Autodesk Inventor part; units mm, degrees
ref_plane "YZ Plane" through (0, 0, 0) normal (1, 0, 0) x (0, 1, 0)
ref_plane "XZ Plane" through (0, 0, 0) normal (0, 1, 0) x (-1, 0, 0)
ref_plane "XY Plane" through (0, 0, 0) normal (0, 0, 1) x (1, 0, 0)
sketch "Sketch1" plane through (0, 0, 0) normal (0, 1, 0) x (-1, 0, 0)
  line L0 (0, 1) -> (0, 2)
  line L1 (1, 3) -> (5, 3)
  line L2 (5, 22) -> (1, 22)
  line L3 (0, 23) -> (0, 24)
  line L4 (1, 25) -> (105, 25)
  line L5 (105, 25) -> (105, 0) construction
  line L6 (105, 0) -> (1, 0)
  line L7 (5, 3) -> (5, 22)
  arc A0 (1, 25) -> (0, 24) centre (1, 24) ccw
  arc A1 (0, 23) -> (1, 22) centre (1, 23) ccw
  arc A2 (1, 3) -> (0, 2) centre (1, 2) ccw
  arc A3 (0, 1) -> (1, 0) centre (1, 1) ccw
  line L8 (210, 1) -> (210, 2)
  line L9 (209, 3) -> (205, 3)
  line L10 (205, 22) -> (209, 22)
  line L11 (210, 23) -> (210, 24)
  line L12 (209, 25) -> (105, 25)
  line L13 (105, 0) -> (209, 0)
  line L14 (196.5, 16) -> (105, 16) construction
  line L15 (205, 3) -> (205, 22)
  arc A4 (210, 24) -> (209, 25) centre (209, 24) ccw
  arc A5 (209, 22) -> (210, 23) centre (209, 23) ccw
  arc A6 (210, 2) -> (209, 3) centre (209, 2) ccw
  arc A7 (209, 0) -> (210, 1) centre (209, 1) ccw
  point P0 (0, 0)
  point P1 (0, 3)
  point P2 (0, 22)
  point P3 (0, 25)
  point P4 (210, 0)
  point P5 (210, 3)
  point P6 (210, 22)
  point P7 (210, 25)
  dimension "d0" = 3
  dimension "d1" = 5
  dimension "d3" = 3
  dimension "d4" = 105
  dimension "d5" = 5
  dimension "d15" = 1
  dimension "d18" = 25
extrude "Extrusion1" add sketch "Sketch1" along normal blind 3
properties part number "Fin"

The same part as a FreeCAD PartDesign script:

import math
import FreeCAD as App
import Part
import Sketcher
from FreeCAD import Vector
Q = App.Units.Quantity

doc = App.newDocument("Part")
body = doc.addObject("PartDesign::Body", "Body")

sketch1 = doc.addObject("Sketcher::SketchObject", "Sketch")
body.addObject(sketch1)
sketch1.AttachmentSupport = (doc.XZ_Plane, [""])
sketch1.MapMode = "FlatFace"
sketch1.addGeometry([
    Part.LineSegment(Vector(0, 2, 0), Vector(0, 1, 0)),
    Part.ArcOfCircle(Part.Circle(Vector(-1, 1, 0), Vector(0, 0, 1), 1), math.radians(-90), math.radians(0)),
    Part.LineSegment(Vector(-1, 0, 0), Vector(-209, 0, 0)),
    Part.ArcOfCircle(Part.Circle(Vector(-209, 1, 0), Vector(0, 0, 1), 1), math.radians(180), math.radians(270)),
    Part.LineSegment(Vector(-210, 1, 0), Vector(-210, 2, 0)),
    Part.ArcOfCircle(Part.Circle(Vector(-209, 2, 0), Vector(0, 0, 1), 1), math.radians(90), math.radians(180)),
    Part.LineSegment(Vector(-209, 3, 0), Vector(-205, 3, 0)),
    Part.LineSegment(Vector(-205, 3, 0), Vector(-205, 22, 0)),
    Part.LineSegment(Vector(-205, 22, 0), Vector(-209, 22, 0)),
    Part.ArcOfCircle(Part.Circle(Vector(-209, 23, 0), Vector(0, 0, 1), 1), math.radians(180), math.radians(270)),
    Part.LineSegment(Vector(-210, 23, 0), Vector(-210, 24, 0)),
    Part.ArcOfCircle(Part.Circle(Vector(-209, 24, 0), Vector(0, 0, 1), 1), math.radians(90), math.radians(180)),
    Part.LineSegment(Vector(-209, 25, 0), Vector(-1, 25, 0)),
    Part.ArcOfCircle(Part.Circle(Vector(-1, 24, 0), Vector(0, 0, 1), 1), math.radians(0), math.radians(90)),
    Part.LineSegment(Vector(0, 24, 0), Vector(0, 23, 0)),
    Part.ArcOfCircle(Part.Circle(Vector(-1, 23, 0), Vector(0, 0, 1), 1), math.radians(-90), math.radians(0)),
    Part.LineSegment(Vector(-1, 22, 0), Vector(-5, 22, 0)),
    Part.LineSegment(Vector(-5, 22, 0), Vector(-5, 3, 0)),
    Part.LineSegment(Vector(-5, 3, 0), Vector(-1, 3, 0)),
    Part.ArcOfCircle(Part.Circle(Vector(-1, 2, 0), Vector(0, 0, 1), 1), math.radians(0), math.radians(90)),
], False)
sketch1.addConstraint([
    Sketcher.Constraint("Tangent", 0, 2, 1, 2),
    Sketcher.Constraint("Tangent", 1, 1, 2, 1),
    Sketcher.Constraint("Tangent", 2, 2, 3, 2),
    Sketcher.Constraint("Tangent", 3, 1, 4, 1),
    Sketcher.Constraint("Tangent", 4, 2, 5, 2),
    Sketcher.Constraint("Tangent", 5, 1, 6, 1),
    Sketcher.Constraint("Coincident", 6, 2, 7, 1),
    Sketcher.Constraint("Coincident", 7, 2, 8, 1),
    Sketcher.Constraint("Tangent", 8, 2, 9, 2),
    Sketcher.Constraint("Tangent", 9, 1, 10, 1),
    Sketcher.Constraint("Tangent", 10, 2, 11, 2),
    Sketcher.Constraint("Tangent", 11, 1, 12, 1),
    Sketcher.Constraint("Tangent", 12, 2, 13, 2),
    Sketcher.Constraint("Tangent", 13, 1, 14, 1),
    Sketcher.Constraint("Tangent", 14, 2, 15, 2),
    Sketcher.Constraint("Tangent", 15, 1, 16, 1),
    Sketcher.Constraint("Coincident", 16, 2, 17, 1),
    Sketcher.Constraint("Coincident", 17, 2, 18, 1),
    Sketcher.Constraint("Tangent", 18, 2, 19, 2),
    Sketcher.Constraint("Tangent", 19, 1, 0, 1),
    Sketcher.Constraint("Vertical", 0),
    Sketcher.Constraint("Horizontal", 2),
    Sketcher.Constraint("Vertical", 4),
    Sketcher.Constraint("Horizontal", 6),
    Sketcher.Constraint("Vertical", 7),
    Sketcher.Constraint("Horizontal", 8),
    Sketcher.Constraint("Vertical", 10),
    Sketcher.Constraint("Horizontal", 12),
    Sketcher.Constraint("Vertical", 14),
    Sketcher.Constraint("Horizontal", 16),
    Sketcher.Constraint("Vertical", 17),
    Sketcher.Constraint("Horizontal", 18),
    Sketcher.Constraint("Equal", 1, 3),
    Sketcher.Constraint("Equal", 3, 5),
    Sketcher.Constraint("Equal", 5, 9),
    Sketcher.Constraint("Equal", 9, 11),
    Sketcher.Constraint("Equal", 11, 13),
    Sketcher.Constraint("Equal", 13, 15),
    Sketcher.Constraint("Equal", 15, 19),
    Sketcher.Constraint("PointOnObject", 0, 2, -2),
    Sketcher.Constraint("PointOnObject", 1, 1, -1),
    Sketcher.Constraint("PointOnObject", 13, 1, -2),
    Sketcher.Constraint("Horizontal", 9, 3, 15, 3),
    Sketcher.Constraint("Horizontal", 5, 3, 19, 3),
    Sketcher.Constraint("Vertical", 5, 3, 9, 3),
    Sketcher.Constraint("Equal", 8, 16),
    Sketcher.Constraint("Equal", 4, 10),
    Sketcher.Constraint("Radius", 1, Q("1 mm")),
    Sketcher.Constraint("DistanceY", 0, 2, 0, 1, Q("1 mm")),
    Sketcher.Constraint("DistanceY", -1, 1, 11, 1, Q("25 mm")),
    Sketcher.Constraint("DistanceX", 16, 2, -1, 1, Q("5 mm")),
    Sketcher.Constraint("DistanceX", 2, 2, 2, 1, Q("208 mm")),
])
pad1 = doc.addObject("PartDesign::Pad", "Pad")
body.addObject(pad1)
pad1.Profile = sketch1
pad1.Length = 3
pad1.Reversed = True

doc.recompute()
